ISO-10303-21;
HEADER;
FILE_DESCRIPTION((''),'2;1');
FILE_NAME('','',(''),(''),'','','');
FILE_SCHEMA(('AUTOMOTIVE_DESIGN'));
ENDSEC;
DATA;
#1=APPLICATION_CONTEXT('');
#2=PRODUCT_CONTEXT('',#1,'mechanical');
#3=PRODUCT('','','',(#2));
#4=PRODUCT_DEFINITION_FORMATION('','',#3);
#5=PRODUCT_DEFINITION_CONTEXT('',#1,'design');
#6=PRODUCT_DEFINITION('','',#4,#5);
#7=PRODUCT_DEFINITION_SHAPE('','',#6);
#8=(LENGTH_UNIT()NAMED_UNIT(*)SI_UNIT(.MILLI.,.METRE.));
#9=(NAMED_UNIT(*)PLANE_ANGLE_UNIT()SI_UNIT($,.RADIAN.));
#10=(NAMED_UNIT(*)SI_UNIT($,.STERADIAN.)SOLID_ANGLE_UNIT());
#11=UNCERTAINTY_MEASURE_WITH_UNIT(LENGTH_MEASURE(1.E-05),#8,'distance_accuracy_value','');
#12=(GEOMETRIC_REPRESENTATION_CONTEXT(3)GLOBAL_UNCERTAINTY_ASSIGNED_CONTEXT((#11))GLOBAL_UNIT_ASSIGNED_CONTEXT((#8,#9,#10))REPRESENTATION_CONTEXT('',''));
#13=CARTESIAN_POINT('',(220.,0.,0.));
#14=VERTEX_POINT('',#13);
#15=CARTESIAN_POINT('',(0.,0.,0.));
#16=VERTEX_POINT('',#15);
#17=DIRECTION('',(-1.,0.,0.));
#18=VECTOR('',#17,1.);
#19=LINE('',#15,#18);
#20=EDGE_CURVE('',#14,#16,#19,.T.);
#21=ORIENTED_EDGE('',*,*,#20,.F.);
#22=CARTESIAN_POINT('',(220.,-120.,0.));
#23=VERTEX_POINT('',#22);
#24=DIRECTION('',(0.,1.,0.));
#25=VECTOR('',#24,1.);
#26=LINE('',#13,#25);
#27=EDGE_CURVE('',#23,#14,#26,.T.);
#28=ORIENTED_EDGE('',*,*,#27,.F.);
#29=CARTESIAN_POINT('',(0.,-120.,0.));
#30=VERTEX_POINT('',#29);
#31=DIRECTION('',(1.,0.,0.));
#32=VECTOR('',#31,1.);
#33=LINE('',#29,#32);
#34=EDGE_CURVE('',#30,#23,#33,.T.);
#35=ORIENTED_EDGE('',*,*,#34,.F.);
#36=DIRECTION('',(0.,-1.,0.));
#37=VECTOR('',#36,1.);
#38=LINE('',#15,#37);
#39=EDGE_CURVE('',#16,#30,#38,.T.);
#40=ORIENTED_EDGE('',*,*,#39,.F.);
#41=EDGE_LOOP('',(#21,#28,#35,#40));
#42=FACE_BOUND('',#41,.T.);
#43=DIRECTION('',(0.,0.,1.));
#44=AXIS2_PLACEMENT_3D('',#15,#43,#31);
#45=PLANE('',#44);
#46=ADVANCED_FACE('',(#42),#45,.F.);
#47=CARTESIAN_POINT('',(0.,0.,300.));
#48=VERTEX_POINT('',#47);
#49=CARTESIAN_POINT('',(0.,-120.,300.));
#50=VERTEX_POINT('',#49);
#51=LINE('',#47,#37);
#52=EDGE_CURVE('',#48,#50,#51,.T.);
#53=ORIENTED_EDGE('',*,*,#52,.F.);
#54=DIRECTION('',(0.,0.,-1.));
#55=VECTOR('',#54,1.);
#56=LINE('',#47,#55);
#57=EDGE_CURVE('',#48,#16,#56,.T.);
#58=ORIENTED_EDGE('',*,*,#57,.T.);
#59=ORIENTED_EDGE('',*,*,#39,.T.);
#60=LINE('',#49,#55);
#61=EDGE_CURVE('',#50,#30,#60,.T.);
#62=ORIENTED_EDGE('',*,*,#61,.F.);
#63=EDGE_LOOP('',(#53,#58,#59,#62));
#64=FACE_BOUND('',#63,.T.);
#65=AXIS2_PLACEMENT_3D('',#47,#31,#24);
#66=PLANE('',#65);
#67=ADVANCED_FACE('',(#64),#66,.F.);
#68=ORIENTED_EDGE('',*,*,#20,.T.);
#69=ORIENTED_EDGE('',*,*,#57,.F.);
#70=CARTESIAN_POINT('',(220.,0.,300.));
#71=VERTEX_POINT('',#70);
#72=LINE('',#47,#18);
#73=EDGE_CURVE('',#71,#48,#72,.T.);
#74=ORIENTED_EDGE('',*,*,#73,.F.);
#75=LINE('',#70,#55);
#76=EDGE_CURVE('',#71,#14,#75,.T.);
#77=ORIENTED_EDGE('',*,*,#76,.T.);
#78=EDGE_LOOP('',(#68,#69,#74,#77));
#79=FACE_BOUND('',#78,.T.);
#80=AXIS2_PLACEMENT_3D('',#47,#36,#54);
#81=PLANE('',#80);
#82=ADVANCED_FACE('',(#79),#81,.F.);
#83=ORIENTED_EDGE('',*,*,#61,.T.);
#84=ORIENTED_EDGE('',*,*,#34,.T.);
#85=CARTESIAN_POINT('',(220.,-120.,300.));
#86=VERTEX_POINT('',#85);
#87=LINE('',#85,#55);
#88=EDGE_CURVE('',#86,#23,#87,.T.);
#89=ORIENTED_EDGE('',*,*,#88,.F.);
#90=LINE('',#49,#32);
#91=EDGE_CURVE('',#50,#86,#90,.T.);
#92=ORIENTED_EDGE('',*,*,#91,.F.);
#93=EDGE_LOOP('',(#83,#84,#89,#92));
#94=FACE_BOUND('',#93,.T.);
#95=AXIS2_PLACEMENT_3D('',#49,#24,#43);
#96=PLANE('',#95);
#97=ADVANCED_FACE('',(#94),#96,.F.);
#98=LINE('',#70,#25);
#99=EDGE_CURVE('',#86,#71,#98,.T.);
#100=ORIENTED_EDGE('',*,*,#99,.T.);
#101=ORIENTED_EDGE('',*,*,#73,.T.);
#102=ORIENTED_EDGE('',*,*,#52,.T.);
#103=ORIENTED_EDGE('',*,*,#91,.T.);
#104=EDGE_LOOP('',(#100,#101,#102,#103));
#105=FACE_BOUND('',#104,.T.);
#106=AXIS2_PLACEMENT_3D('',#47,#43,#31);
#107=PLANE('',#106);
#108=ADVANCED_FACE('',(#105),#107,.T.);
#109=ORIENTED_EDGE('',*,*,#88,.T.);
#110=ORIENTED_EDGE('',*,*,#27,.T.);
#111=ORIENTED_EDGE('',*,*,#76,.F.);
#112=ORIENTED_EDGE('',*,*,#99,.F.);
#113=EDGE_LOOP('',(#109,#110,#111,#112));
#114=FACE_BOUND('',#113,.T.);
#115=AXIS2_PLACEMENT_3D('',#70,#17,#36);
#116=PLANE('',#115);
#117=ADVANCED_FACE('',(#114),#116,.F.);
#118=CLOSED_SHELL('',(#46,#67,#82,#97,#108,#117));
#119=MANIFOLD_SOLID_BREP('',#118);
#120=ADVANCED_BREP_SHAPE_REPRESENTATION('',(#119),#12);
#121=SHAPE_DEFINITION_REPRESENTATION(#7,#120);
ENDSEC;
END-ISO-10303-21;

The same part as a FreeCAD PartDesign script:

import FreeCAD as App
import Part
import Sketcher

doc = App.newDocument("Part")
body = doc.addObject("PartDesign::Body", "Body")

# Sketch on XY plane
sketch1 = body.newObject("Sketcher::SketchObject", "Sketch")
sketch1.AttachmentSupport = (doc.getObject("XY_Plane"), [""])
sketch1.MapMode = "FlatFace"
sketch1.addGeometry(Part.LineSegment(App.Vector(0, 0, 0), App.Vector(0, -120, 0)), False)
sketch1.addGeometry(Part.LineSegment(App.Vector(0, -120, 0), App.Vector(220, -120, 0)), False)
sketch1.addGeometry(Part.LineSegment(App.Vector(220, -120, 0), App.Vector(220, 0, 0)), False)
sketch1.addGeometry(Part.LineSegment(App.Vector(220, 0, 0), App.Vector(0, 0, 0)), False)
sketch1.addConstraint(Sketcher.Constraint("Coincident", 0, 2, 1, 1))
sketch1.addConstraint(Sketcher.Constraint("Coincident", 1, 2, 2, 1))
sketch1.addConstraint(Sketcher.Constraint("Coincident", 2, 2, 3, 1))
sketch1.addConstraint(Sketcher.Constraint("Coincident", 3, 2, 0, 1))
sketch1.addConstraint(Sketcher.Constraint("Vertical", 0))
sketch1.addConstraint(Sketcher.Constraint("Horizontal", 1))
sketch1.addConstraint(Sketcher.Constraint("Vertical", 2))
sketch1.addConstraint(Sketcher.Constraint("Horizontal", 3))
sketch1.addConstraint(Sketcher.Constraint("Coincident", 3, 2, -1, 1))
sketch1.addConstraint(Sketcher.Constraint("DistanceX", 1, 1, 1, 2, 220.0))
sketch1.addConstraint(Sketcher.Constraint("DistanceY", 0, 2, 0, 1, 120.0))
pad1 = body.newObject("PartDesign::Pad", "Pad")
pad1.Profile = sketch1
pad1.Length = 300

doc.recompute()
